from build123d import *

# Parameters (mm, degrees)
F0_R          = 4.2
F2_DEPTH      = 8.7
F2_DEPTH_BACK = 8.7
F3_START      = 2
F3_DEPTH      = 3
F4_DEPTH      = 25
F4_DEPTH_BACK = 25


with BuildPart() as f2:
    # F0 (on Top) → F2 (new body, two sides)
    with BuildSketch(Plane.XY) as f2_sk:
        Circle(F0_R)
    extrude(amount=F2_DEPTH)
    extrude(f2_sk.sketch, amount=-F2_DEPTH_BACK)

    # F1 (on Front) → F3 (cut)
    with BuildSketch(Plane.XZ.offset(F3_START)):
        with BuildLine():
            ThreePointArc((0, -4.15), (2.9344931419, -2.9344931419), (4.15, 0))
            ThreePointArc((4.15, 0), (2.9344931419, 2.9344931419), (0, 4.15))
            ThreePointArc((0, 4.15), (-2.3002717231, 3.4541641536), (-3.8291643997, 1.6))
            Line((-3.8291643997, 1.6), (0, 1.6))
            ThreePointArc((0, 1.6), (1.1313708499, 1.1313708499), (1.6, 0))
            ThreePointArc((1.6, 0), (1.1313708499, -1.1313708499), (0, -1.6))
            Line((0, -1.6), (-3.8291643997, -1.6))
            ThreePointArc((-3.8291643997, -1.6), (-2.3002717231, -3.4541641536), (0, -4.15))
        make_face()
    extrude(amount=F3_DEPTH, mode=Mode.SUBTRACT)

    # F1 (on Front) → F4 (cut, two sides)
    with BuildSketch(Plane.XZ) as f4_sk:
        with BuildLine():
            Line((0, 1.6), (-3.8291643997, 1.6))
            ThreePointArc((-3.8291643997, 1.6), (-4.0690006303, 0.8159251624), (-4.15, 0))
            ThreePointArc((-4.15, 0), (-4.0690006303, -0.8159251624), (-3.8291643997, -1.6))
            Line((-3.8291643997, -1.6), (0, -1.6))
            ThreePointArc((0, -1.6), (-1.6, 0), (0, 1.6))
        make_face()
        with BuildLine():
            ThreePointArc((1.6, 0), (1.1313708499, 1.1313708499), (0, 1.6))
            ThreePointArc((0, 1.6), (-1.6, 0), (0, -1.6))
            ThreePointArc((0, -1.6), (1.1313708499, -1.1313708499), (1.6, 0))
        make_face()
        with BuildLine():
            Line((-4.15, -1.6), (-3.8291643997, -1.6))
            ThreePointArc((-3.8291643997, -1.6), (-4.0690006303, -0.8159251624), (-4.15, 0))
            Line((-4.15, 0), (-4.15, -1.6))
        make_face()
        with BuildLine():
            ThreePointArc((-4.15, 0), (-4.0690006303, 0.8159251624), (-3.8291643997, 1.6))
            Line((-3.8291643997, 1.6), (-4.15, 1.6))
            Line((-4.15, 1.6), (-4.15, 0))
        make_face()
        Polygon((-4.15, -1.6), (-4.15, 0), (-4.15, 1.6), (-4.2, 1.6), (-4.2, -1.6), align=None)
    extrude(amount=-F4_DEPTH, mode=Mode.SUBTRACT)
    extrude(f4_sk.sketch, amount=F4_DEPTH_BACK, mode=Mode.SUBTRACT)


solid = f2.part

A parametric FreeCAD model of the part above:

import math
import FreeCAD as App
import Part
import Sketcher
Q = App.Units.Quantity

doc = App.newDocument("Part")
body = doc.addObject("PartDesign::Body", "Body")

sketch1 = body.newObject("Sketcher::SketchObject", "Sketch")
sketch1.AttachmentSupport = (doc.getObject("XY_Plane"), [""])
sketch1.MapMode = "FlatFace"
sketch1.addGeometry(Part.Circle(App.Vector(0, 0, 0), App.Vector(0, 0, 1), 4.2), False)
sketch1.addConstraint([
    Sketcher.Constraint("Coincident", 0, 3, -1, 1),
    Sketcher.Constraint("Diameter", 0, Q("8.4 mm")),
])
pad1 = body.newObject("PartDesign::Pad", "Pad")
pad1.Profile = sketch1
pad1.Type = "TwoLengths"
pad1.Length = 8.7
pad1.Length2 = 8.7

sketch2 = body.newObject("Sketcher::SketchObject", "Sketch001")
sketch2.AttachmentSupport = (doc.getObject("XZ_Plane"), [""])
sketch2.MapMode = "FlatFace"
sketch2.AttachmentOffset = App.Placement(App.Vector(0, 0, 2), App.Rotation())
sketch2.addGeometry([
    Part.ArcOfCircle(Part.Circle(App.Vector(0, 0, 0), App.Vector(0, 0, 1), 4.2), math.radians(-90), math.radians(0)),
    Part.ArcOfCircle(Part.Circle(App.Vector(0, 0, 0), App.Vector(0, 0, 1), 4.2), math.radians(0), math.radians(90)),
    Part.ArcOfCircle(Part.Circle(App.Vector(0, 0, 0), App.Vector(0, 0, 1), 4.2), math.radians(90), math.radians(157)),
    Part.LineSegment(App.Vector(-3.8, 1.6, 0), App.Vector(0, 1.6, 0)),
    Part.ArcOfCircle(Part.Circle(App.Vector(0, 0, 0), App.Vector(0, 0, 1), 1.6), math.radians(0), math.radians(90)),
    Part.ArcOfCircle(Part.Circle(App.Vector(0, 0, 0), App.Vector(0, 0, 1), 1.6), math.radians(-90), math.radians(0)),
    Part.LineSegment(App.Vector(0, -1.6, 0), App.Vector(-3.8, -1.6, 0)),
    Part.ArcOfCircle(Part.Circle(App.Vector(0, 0, 0), App.Vector(0, 0, 1), 4.2), math.radians(-157), math.radians(-90)),
], False)
sketch2.addConstraint([
    Sketcher.Constraint("Tangent", 0, 2, 1, 1),
    Sketcher.Constraint("Tangent", 1, 2, 2, 1),
    Sketcher.Constraint("Coincident", 2, 2, 3, 1),
    Sketcher.Constraint("Tangent", 3, 2, 4, 2),
    Sketcher.Constraint("Tangent", 4, 1, 5, 2),
    Sketcher.Constraint("Tangent", 5, 1, 6, 1),
    Sketcher.Constraint("Coincident", 6, 2, 7, 1),
    Sketcher.Constraint("Tangent", 7, 2, 0, 1),
    Sketcher.Constraint("Horizontal", 3),
    Sketcher.Constraint("Horizontal", 6),
    Sketcher.Constraint("Coincident", 0, 3, -1, 1),
    Sketcher.Constraint("Coincident", 2, 3, -1, 1),
    Sketcher.Constraint("Coincident", 4, 3, -1, 1),
    Sketcher.Constraint("Equal", 4, 5),
    Sketcher.Constraint("Equal", 2, 7),
    Sketcher.Constraint("PointOnObject", 0, 2, -1),
    Sketcher.Constraint("PointOnObject", 1, 2, -2),
    Sketcher.Constraint("PointOnObject", 4, 1, -1),
    Sketcher.Constraint("PointOnObject", 7, 2, -2),
    Sketcher.Constraint("Radius", 4, Q("1.6 mm")),
    Sketcher.Constraint("Radius", 0, Q("4.15 mm")),
])
pocket1 = body.newObject("PartDesign::Pocket", "Pocket")
pocket1.Profile = sketch2
pocket1.Length = 3
pocket1.Reversed = True

sketch3 = body.newObject("Sketcher::SketchObject", "Sketch002")
sketch3.AttachmentSupport = (doc.getObject("XZ_Plane"), [""])
sketch3.MapMode = "FlatFace"
sketch3.addGeometry([
    Part.LineSegment(App.Vector(0, 1.6, 0), App.Vector(-4.2, 1.6, 0)),
    Part.LineSegment(App.Vector(-4.2, 1.6, 0), App.Vector(-4.2, -1.6, 0)),
    Part.LineSegment(App.Vector(-4.2, -1.6, 0), App.Vector(0, -1.6, 0)),
    Part.ArcOfCircle(Part.Circle(App.Vector(0, 0, 0), App.Vector(0, 0, 1), 1.6), math.radians(-90), math.radians(0)),
    Part.ArcOfCircle(Part.Circle(App.Vector(0, 0, 0), App.Vector(0, 0, 1), 1.6), math.radians(0), math.radians(90)),
], False)
sketch3.addConstraint([
    Sketcher.Constraint("Coincident", 0, 2, 1, 1),
    Sketcher.Constraint("Coincident", 1, 2, 2, 1),
    Sketcher.Constraint("Tangent", 2, 2, 3, 1),
    Sketcher.Constraint("Tangent", 3, 2, 4, 1),
    Sketcher.Constraint("Tangent", 4, 2, 0, 1),
    Sketcher.Constraint("Horizontal", 0),
    Sketcher.Constraint("Vertical", 1),
    Sketcher.Constraint("Horizontal", 2),
    Sketcher.Constraint("Coincident", 3, 3, -1, 1),
    Sketcher.Constraint("Equal", 3, 4),
    Sketcher.Constraint("PointOnObject", 3, 2, -1),
    Sketcher.Constraint("Radius", 3, Q("1.6 mm")),
    Sketcher.Constraint("DistanceX", 0, 2, 0, 1, Q("4.2 mm")),
])
pocket2 = body.newObject("PartDesign::Pocket", "Pocket001")
pocket2.Profile = sketch3
pocket2.Type = "ThroughAll"
pocket2.Midplane = True

doc.recompute()
